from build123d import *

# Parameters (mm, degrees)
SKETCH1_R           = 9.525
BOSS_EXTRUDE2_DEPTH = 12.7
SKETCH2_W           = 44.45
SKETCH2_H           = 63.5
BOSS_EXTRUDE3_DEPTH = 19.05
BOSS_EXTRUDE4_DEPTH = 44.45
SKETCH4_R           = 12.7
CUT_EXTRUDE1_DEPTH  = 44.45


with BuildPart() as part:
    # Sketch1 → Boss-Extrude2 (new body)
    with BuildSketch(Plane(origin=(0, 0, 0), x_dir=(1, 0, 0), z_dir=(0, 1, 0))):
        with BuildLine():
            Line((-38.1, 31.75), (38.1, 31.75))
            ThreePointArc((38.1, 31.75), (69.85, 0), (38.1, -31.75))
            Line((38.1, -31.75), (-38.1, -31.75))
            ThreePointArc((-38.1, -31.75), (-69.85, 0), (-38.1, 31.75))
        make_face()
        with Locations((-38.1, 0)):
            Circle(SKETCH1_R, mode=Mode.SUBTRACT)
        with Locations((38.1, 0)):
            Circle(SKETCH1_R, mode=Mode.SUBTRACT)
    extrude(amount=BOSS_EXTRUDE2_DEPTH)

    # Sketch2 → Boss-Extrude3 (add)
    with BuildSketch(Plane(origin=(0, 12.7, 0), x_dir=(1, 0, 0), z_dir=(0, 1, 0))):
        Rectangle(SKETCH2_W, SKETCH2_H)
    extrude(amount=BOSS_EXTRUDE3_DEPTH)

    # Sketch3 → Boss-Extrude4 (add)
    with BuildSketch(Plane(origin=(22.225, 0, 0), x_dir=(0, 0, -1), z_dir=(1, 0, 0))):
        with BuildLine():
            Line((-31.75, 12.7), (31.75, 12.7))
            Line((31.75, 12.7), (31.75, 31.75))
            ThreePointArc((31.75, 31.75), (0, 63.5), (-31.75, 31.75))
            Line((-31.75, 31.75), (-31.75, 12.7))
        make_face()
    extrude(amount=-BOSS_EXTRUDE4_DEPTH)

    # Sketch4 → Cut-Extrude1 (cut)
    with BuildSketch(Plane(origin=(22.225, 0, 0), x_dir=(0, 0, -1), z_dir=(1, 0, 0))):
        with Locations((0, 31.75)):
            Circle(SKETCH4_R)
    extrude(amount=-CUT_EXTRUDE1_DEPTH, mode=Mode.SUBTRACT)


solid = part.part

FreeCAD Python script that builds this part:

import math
import FreeCAD as App
import Part
import Sketcher
Q = App.Units.Quantity


def add_polygon(sketch, points):
    """Adds a closed chain of lines whose ends are joined by coincident constraints."""
    first, n = sketch.GeometryCount, len(points)
    for a, b in zip(points, points[1:] + points[:1]):
        sketch.addGeometry(Part.LineSegment(App.Vector(*a, 0), App.Vector(*b, 0)), False)
    for i in range(n):
        sketch.addConstraint(Sketcher.Constraint("Coincident", first + i, 2, first + (i + 1) % n, 1))

doc = App.newDocument("Part")
body = doc.addObject("PartDesign::Body", "Body")

sketch1 = doc.addObject("Sketcher::SketchObject", "Sketch")
body.addObject(sketch1)
sketch1.AttachmentSupport = (doc.XZ_Plane, [""])
sketch1.MapMode = "FlatFace"
sketch1.addGeometry([
    Part.LineSegment(App.Vector(38, -32, 0), App.Vector(-38, -32, 0)),
    Part.ArcOfCircle(Part.Circle(App.Vector(-38, 0, 0), App.Vector(0, 0, 1), 32), math.radians(90), math.radians(270)),
    Part.LineSegment(App.Vector(-38, 32, 0), App.Vector(38, 32, 0)),
    Part.ArcOfCircle(Part.Circle(App.Vector(38, 0, 0), App.Vector(0, 0, 1), 32), math.radians(-90), math.radians(90)),
    Part.Circle(App.Vector(38, 0, 0), App.Vector(0, 0, 1), 10),
    Part.Circle(App.Vector(-38, 0, 0), App.Vector(0, 0, 1), 10),
], False)
sketch1.addConstraint([
    Sketcher.Constraint("Tangent", 0, 2, 1, 2),
    Sketcher.Constraint("Tangent", 1, 1, 2, 1),
    Sketcher.Constraint("Tangent", 2, 2, 3, 2),
    Sketcher.Constraint("Tangent", 3, 1, 0, 1),
    Sketcher.Constraint("Horizontal", 0),
    Sketcher.Constraint("Horizontal", 2),
    Sketcher.Constraint("Coincident", 4, 3, 3, 3),
    Sketcher.Constraint("Coincident", 5, 3, 1, 3),
    Sketcher.Constraint("Equal", 4, 5),
    Sketcher.Constraint("Symmetric", 1, 3, 3, 3, -1, 1),
    Sketcher.Constraint("Diameter", 4, Q("0.75 in")),
    Sketcher.Constraint("DistanceX", 0, 2, 0, 1, Q("3 in")),
    Sketcher.Constraint("Radius", 1, Q("1.25 in")),
])
pad1 = doc.addObject("PartDesign::Pad", "Pad")
body.addObject(pad1)
pad1.Profile = sketch1
pad1.Length = Q("0.5 in")
pad1.Reversed = True

sketch2 = doc.addObject("Sketcher::SketchObject", "Sketch001")
body.addObject(sketch2)
sketch2.AttachmentSupport = (doc.XZ_Plane, [""])
sketch2.MapMode = "FlatFace"
sketch2.AttachmentOffset = App.Placement(App.Vector(0, 0, -0.5 * 25.4), App.Rotation())
add_polygon(sketch2, [(-22, -32), (-22, 32), (22, 32), (22, -32)])
sketch2.addConstraint([
    Sketcher.Constraint("Vertical", 0),
    Sketcher.Constraint("Horizontal", 1),
    Sketcher.Constraint("Vertical", 2),
    Sketcher.Constraint("Horizontal", 3),
    Sketcher.Constraint("Symmetric", 0, 2, 2, 2, -1, 1),
    Sketcher.Constraint("DistanceY", 0, 1, 0, 2, Q("2.5 in")),
    Sketcher.Constraint("DistanceX", 1, 1, 1, 2, Q("1.75 in")),
])
pad2 = doc.addObject("PartDesign::Pad", "Pad001")
body.addObject(pad2)
pad2.Profile = sketch2
pad2.Length = Q("0.75 in")
pad2.Reversed = True

sketch3 = doc.addObject("Sketcher::SketchObject", "Sketch002")
body.addObject(sketch3)
sketch3.AttachmentSupport = (doc.YZ_Plane, [""])
sketch3.MapMode = "FlatFace"
sketch3.AttachmentOffset = App.Placement(App.Vector(0, 0, 0.875 * 25.4), App.Rotation())
sketch3.addGeometry([
    Part.LineSegment(App.Vector(13, 32, 0), App.Vector(13, -32, 0)),
    Part.LineSegment(App.Vector(13, -32, 0), App.Vector(32, -32, 0)),
    Part.ArcOfCircle(Part.Circle(App.Vector(32, 0, 0), App.Vector(0, 0, 1), 32), math.radians(-90), math.radians(90)),
    Part.LineSegment(App.Vector(32, 32, 0), App.Vector(13, 32, 0)),
], False)
sketch3.addConstraint([
    Sketcher.Constraint("Coincident", 0, 2, 1, 1),
    Sketcher.Constraint("Tangent", 1, 2, 2, 1),
    Sketcher.Constraint("Tangent", 2, 2, 3, 1),
    Sketcher.Constraint("Coincident", 3, 2, 0, 1),
    Sketcher.Constraint("Vertical", 0),
    Sketcher.Constraint("Horizontal", 1),
    Sketcher.Constraint("Horizontal", 3),
    Sketcher.Constraint("PointOnObject", 2, 3, -1),
    Sketcher.Constraint("Radius", 2, Q("1.25 in")),
    Sketcher.Constraint("DistanceX", 1, 1, 1, 2, Q("0.75 in")),
    Sketcher.Constraint("DistanceX", -1, 1, 0, 2, Q("0.5 in")),
])
pad3 = doc.addObject("PartDesign::Pad", "Pad002")
body.addObject(pad3)
pad3.Profile = sketch3
pad3.Length = Q("1.75 in")
pad3.Reversed = True

sketch4 = doc.addObject("Sketcher::SketchObject", "Sketch003")
body.addObject(sketch4)
sketch4.AttachmentSupport = (doc.YZ_Plane, [""])
sketch4.MapMode = "FlatFace"
sketch4.AttachmentOffset = App.Placement(App.Vector(0, 0, 0.875 * 25.4), App.Rotation())
sketch4.addGeometry(Part.Circle(App.Vector(32, 0, 0), App.Vector(0, 0, 1), 13), False)
sketch4.addConstraint([
    Sketcher.Constraint("PointOnObject", 0, 3, -1),
    Sketcher.Constraint("Diameter", 0, Q("1 in")),
    Sketcher.Constraint("DistanceX", -1, 1, 0, 3, Q("1.25 in")),
])
pocket1 = doc.addObject("PartDesign::Pocket", "Pocket")
body.addObject(pocket1)
pocket1.Profile = sketch4
pocket1.Length = Q("1.75 in")

doc.recompute()
